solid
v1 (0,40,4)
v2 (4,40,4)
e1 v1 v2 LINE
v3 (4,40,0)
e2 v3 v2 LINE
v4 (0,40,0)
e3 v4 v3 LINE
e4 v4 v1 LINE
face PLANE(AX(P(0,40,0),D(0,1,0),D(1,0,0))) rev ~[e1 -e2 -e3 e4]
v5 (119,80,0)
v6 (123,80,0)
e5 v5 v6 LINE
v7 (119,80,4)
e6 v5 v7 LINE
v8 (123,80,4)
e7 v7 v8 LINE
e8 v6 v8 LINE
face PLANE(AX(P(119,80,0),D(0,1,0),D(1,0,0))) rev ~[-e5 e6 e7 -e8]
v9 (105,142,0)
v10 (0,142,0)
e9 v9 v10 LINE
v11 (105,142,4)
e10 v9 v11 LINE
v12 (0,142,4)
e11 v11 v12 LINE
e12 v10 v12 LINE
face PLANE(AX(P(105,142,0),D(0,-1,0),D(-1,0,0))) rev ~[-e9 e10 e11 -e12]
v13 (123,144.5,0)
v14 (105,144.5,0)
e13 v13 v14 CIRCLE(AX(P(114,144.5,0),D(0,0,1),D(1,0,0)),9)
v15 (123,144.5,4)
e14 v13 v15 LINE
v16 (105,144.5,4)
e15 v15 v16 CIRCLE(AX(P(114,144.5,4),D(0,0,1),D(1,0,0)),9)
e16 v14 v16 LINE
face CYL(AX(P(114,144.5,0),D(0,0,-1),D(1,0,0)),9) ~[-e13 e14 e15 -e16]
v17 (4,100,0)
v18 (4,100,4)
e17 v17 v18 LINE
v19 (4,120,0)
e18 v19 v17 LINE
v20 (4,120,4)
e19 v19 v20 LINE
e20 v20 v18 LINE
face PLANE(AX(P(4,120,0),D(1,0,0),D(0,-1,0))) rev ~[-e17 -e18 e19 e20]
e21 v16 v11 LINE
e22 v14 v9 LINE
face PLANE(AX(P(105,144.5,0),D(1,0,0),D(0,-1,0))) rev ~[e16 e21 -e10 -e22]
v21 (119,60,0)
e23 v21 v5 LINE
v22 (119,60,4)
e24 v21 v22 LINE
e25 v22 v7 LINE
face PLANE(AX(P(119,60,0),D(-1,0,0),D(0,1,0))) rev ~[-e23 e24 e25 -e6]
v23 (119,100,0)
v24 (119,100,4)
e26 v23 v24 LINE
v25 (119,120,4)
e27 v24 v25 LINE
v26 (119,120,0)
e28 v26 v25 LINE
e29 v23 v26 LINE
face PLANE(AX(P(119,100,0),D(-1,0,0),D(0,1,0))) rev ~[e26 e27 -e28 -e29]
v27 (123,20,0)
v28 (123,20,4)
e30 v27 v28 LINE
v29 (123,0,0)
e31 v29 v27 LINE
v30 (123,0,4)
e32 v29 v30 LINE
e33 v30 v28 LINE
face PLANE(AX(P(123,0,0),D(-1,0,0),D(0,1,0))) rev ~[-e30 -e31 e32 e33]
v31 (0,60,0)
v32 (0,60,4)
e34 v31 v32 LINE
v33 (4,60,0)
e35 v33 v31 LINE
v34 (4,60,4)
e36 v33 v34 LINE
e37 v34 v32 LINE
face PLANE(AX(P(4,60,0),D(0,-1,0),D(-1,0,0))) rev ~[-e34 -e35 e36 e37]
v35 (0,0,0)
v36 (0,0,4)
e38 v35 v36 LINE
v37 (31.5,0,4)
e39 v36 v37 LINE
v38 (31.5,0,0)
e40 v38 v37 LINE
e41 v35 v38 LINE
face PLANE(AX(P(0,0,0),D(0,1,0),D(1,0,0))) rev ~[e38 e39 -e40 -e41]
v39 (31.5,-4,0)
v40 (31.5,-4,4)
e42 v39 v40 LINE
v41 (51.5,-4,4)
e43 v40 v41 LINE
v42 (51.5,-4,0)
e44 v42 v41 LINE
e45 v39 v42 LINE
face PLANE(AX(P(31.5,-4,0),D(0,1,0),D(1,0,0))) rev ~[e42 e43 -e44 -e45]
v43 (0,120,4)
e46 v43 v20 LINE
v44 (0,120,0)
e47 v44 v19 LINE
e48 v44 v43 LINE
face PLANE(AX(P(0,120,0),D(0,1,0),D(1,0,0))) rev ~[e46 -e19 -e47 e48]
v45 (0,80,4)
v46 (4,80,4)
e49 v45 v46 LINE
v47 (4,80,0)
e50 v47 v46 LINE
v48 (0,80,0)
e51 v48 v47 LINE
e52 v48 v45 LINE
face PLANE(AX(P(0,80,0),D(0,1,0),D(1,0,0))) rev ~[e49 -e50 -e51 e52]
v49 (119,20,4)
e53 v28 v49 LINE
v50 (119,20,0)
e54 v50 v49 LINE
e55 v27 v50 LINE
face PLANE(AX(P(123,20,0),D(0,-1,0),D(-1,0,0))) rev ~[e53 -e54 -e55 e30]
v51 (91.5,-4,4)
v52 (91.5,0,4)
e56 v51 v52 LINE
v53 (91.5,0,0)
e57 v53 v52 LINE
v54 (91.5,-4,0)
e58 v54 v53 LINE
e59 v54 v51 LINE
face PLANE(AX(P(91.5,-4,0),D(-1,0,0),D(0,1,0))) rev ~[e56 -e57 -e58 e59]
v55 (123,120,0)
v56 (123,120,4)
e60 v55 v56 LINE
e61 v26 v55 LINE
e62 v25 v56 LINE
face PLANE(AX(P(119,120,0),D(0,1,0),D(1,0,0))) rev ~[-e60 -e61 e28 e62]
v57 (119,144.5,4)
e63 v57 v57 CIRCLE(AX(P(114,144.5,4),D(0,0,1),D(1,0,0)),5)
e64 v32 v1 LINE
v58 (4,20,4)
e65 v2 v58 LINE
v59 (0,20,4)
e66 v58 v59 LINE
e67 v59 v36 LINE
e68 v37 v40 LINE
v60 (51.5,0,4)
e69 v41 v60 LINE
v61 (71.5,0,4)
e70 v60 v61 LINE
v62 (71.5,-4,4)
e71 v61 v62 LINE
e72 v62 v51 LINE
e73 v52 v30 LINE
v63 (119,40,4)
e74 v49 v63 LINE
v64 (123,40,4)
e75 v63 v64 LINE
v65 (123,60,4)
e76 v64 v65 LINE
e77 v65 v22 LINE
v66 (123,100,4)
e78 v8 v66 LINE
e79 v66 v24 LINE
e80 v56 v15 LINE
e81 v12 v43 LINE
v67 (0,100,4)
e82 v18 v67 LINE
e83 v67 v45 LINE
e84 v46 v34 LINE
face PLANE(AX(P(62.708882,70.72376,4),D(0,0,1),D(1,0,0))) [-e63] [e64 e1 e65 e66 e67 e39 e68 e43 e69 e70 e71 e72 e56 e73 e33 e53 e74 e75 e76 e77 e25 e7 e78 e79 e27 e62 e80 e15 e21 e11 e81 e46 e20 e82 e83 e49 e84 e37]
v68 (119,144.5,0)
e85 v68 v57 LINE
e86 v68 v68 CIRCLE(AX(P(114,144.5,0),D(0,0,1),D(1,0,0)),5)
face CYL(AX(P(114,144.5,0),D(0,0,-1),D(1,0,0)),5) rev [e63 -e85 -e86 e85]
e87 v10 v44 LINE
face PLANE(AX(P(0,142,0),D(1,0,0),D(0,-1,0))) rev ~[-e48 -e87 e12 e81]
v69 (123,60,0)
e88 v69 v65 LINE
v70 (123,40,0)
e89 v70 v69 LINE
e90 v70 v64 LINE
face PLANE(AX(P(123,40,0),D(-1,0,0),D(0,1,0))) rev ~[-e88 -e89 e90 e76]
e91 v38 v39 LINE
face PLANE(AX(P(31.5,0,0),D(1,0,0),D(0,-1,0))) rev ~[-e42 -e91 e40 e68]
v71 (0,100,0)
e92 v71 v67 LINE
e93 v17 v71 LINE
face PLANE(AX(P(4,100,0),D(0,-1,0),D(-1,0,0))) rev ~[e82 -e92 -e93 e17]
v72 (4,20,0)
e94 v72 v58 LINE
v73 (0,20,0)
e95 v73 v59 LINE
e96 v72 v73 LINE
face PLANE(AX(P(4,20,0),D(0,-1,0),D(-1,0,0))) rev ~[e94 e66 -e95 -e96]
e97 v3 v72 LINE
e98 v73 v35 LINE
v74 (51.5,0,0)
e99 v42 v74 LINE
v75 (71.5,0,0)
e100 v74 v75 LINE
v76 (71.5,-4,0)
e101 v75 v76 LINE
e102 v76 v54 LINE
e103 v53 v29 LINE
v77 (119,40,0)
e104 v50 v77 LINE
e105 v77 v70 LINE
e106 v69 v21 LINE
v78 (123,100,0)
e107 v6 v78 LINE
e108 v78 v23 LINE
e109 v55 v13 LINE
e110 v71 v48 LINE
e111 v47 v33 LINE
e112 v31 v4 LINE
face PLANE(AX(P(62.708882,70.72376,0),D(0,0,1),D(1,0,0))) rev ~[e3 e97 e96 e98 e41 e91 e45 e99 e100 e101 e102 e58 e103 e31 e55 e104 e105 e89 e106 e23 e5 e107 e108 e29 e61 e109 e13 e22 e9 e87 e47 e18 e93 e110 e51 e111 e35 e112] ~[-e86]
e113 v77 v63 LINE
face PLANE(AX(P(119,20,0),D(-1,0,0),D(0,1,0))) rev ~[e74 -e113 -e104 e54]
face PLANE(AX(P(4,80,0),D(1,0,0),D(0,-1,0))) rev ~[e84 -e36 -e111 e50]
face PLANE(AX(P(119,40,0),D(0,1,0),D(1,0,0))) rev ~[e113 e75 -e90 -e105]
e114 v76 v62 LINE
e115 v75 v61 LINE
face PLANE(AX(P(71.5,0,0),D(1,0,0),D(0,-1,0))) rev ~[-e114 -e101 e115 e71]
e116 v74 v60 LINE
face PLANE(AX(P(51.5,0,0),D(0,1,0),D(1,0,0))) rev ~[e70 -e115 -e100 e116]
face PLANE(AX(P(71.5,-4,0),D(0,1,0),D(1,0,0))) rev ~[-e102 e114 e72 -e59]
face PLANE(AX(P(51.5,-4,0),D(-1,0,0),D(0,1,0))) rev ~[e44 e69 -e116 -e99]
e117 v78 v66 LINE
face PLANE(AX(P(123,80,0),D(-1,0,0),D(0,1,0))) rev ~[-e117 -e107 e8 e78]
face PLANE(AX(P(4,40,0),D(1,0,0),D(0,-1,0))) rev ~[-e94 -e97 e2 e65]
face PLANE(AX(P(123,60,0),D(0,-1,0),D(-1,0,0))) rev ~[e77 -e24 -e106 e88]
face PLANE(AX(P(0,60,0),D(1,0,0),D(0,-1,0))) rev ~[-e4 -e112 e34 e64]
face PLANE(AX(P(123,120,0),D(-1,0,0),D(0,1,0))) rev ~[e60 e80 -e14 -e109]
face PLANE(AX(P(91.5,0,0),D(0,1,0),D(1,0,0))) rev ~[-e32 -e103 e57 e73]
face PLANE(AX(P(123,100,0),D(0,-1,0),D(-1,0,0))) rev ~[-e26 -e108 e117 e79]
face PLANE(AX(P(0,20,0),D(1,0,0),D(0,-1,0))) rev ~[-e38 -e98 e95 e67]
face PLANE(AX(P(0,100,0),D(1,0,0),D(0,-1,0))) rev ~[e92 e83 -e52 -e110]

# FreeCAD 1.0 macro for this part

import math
import FreeCAD as App
import Part
import Sketcher

doc = App.newDocument("Part")
body = doc.addObject("PartDesign::Body", "Body")

sketch1 = body.newObject("Sketcher::SketchObject", "Sketch")
sketch1.AttachmentSupport = (doc.getObject("XY_Plane"), [""])
sketch1.MapMode = "FlatFace"
sketch1.addGeometry(Part.LineSegment(App.Vector(31.5, 0, 0), App.Vector(31.5, -4, 0)), False)
sketch1.addGeometry(Part.LineSegment(App.Vector(31.5, -4, 0), App.Vector(51.5, -4, 0)), False)
sketch1.addGeometry(Part.LineSegment(App.Vector(51.5, -4, 0), App.Vector(51.5, 0, 0)), False)
sketch1.addGeometry(Part.LineSegment(App.Vector(51.5, 0, 0), App.Vector(71.5, 0, 0)), False)
sketch1.addGeometry(Part.LineSegment(App.Vector(71.5, 0, 0), App.Vector(71.5, -4, 0)), False)
sketch1.addGeometry(Part.LineSegment(App.Vector(71.5, -4, 0), App.Vector(91.5, -4, 0)), False)
sketch1.addGeometry(Part.LineSegment(App.Vector(91.5, -4, 0), App.Vector(91.5, 0, 0)), False)
sketch1.addGeometry(Part.LineSegment(App.Vector(91.5, 0, 0), App.Vector(123, 0, 0)), False)
sketch1.addGeometry(Part.LineSegment(App.Vector(123, 0, 0), App.Vector(123, 20, 0)), False)
sketch1.addGeometry(Part.LineSegment(App.Vector(123, 20, 0), App.Vector(119, 20, 0)), False)
sketch1.addGeometry(Part.LineSegment(App.Vector(119, 20, 0), App.Vector(119, 40, 0)), False)
sketch1.addGeometry(Part.LineSegment(App.Vector(119, 40, 0), App.Vector(123, 40, 0)), False)
sketch1.addGeometry(Part.LineSegment(App.Vector(123, 40, 0), App.Vector(123, 60, 0)), False)
sketch1.addGeometry(Part.LineSegment(App.Vector(123, 60, 0), App.Vector(119, 60, 0)), False)
sketch1.addGeometry(Part.LineSegment(App.Vector(119, 60, 0), App.Vector(119, 80, 0)), False)
sketch1.addGeometry(Part.LineSegment(App.Vector(119, 80, 0), App.Vector(123, 80, 0)), False)
sketch1.addGeometry(Part.LineSegment(App.Vector(123, 80, 0), App.Vector(123, 100, 0)), False)
sketch1.addGeometry(Part.LineSegment(App.Vector(123, 100, 0), App.Vector(119, 100, 0)), False)
sketch1.addGeometry(Part.LineSegment(App.Vector(119, 100, 0), App.Vector(119, 120, 0)), False)
sketch1.addGeometry(Part.LineSegment(App.Vector(119, 120, 0), App.Vector(123, 120, 0)), False)
sketch1.addGeometry(Part.LineSegment(App.Vector(123, 120, 0), App.Vector(123, 144.5, 0)), False)
sketch1.addGeometry(Part.ArcOfCircle(Part.Circle(App.Vector(114, 144.5, 0), App.Vector(0, 0, 1), 9), math.radians(0), math.radians(180)), False)
sketch1.addGeometry(Part.LineSegment(App.Vector(105, 144.5, 0), App.Vector(105, 142, 0)), False)
sketch1.addGeometry(Part.LineSegment(App.Vector(105, 142, 0), App.Vector(0, 142, 0)), False)
sketch1.addGeometry(Part.LineSegment(App.Vector(0, 142, 0), App.Vector(0, 120, 0)), False)
sketch1.addGeometry(Part.LineSegment(App.Vector(0, 120, 0), App.Vector(4, 120, 0)), False)
sketch1.addGeometry(Part.LineSegment(App.Vector(4, 120, 0), App.Vector(4, 100, 0)), False)
sketch1.addGeometry(Part.LineSegment(App.Vector(4, 100, 0), App.Vector(0, 100, 0)), False)
sketch1.addGeometry(Part.LineSegment(App.Vector(0, 100, 0), App.Vector(0, 80, 0)), False)
sketch1.addGeometry(Part.LineSegment(App.Vector(0, 80, 0), App.Vector(4, 80, 0)), False)
sketch1.addGeometry(Part.LineSegment(App.Vector(4, 80, 0), App.Vector(4, 60, 0)), False)
sketch1.addGeometry(Part.LineSegment(App.Vector(4, 60, 0), App.Vector(0, 60, 0)), False)
sketch1.addGeometry(Part.LineSegment(App.Vector(0, 60, 0), App.Vector(0, 40, 0)), False)
sketch1.addGeometry(Part.LineSegment(App.Vector(0, 40, 0), App.Vector(4, 40, 0)), False)
sketch1.addGeometry(Part.LineSegment(App.Vector(4, 40, 0), App.Vector(4, 20, 0)), False)
sketch1.addGeometry(Part.LineSegment(App.Vector(4, 20, 0), App.Vector(0, 20, 0)), False)
sketch1.addGeometry(Part.LineSegment(App.Vector(0, 20, 0), App.Vector(0, 0, 0)), False)
sketch1.addGeometry(Part.LineSegment(App.Vector(0, 0, 0), App.Vector(31.5, 0, 0)), False)
sketch1.addGeometry(Part.Circle(App.Vector(114, 144.5, 0), App.Vector(0, 0, 1), 5), False)
sketch1.addConstraint(Sketcher.Constraint("Coincident", 0, 2, 1, 1))
sketch1.addConstraint(Sketcher.Constraint("Coincident", 1, 2, 2, 1))
sketch1.addConstraint(Sketcher.Constraint("Coincident", 2, 2, 3, 1))
sketch1.addConstraint(Sketcher.Constraint("Coincident", 3, 2, 4, 1))
sketch1.addConstraint(Sketcher.Constraint("Coincident", 4, 2, 5, 1))
sketch1.addConstraint(Sketcher.Constraint("Coincident", 5, 2, 6, 1))
sketch1.addConstraint(Sketcher.Constraint("Coincident", 6, 2, 7, 1))
sketch1.addConstraint(Sketcher.Constraint("Coincident", 7, 2, 8, 1))
sketch1.addConstraint(Sketcher.Constraint("Coincident", 8, 2, 9, 1))
sketch1.addConstraint(Sketcher.Constraint("Coincident", 9, 2, 10, 1))
sketch1.addConstraint(Sketcher.Constraint("Coincident", 10, 2, 11, 1))
sketch1.addConstraint(Sketcher.Constraint("Coincident", 11, 2, 12, 1))
sketch1.addConstraint(Sketcher.Constraint("Coincident", 12, 2, 13, 1))
sketch1.addConstraint(Sketcher.Constraint("Coincident", 13, 2, 14, 1))
sketch1.addConstraint(Sketcher.Constraint("Coincident", 14, 2, 15, 1))
sketch1.addConstraint(Sketcher.Constraint("Coincident", 15, 2, 16, 1))
sketch1.addConstraint(Sketcher.Constraint("Coincident", 16, 2, 17, 1))
sketch1.addConstraint(Sketcher.Constraint("Coincident", 17, 2, 18, 1))
sketch1.addConstraint(Sketcher.Constraint("Coincident", 18, 2, 19, 1))
sketch1.addConstraint(Sketcher.Constraint("Coincident", 19, 2, 20, 1))
sketch1.addConstraint(Sketcher.Constraint("Tangent", 20, 2, 21, 1))
sketch1.addConstraint(Sketcher.Constraint("Tangent", 21, 2, 22, 1))
sketch1.addConstraint(Sketcher.Constraint("Coincident", 22, 2, 23, 1))
sketch1.addConstraint(Sketcher.Constraint("Coincident", 23, 2, 24, 1))
sketch1.addConstraint(Sketcher.Constraint("Coincident", 24, 2, 25, 1))
sketch1.addConstraint(Sketcher.Constraint("Coincident", 25, 2, 26, 1))
sketch1.addConstraint(Sketcher.Constraint("Coincident", 26, 2, 27, 1))
sketch1.addConstraint(Sketcher.Constraint("Coincident", 27, 2, 28, 1))
sketch1.addConstraint(Sketcher.Constraint("Coincident", 28, 2, 29, 1))
sketch1.addConstraint(Sketcher.Constraint("Coincident", 29, 2, 30, 1))
sketch1.addConstraint(Sketcher.Constraint("Coincident", 30, 2, 31, 1))
sketch1.addConstraint(Sketcher.Constraint("Coincident", 31, 2, 32, 1))
sketch1.addConstraint(Sketcher.Constraint("Coincident", 32, 2, 33, 1))
sketch1.addConstraint(Sketcher.Constraint("Coincident", 33, 2, 34, 1))
sketch1.addConstraint(Sketcher.Constraint("Coincident", 34, 2, 35, 1))
sketch1.addConstraint(Sketcher.Constraint("Coincident", 35, 2, 36, 1))
sketch1.addConstraint(Sketcher.Constraint("Coincident", 36, 2, 37, 1))
sketch1.addConstraint(Sketcher.Constraint("Coincident", 37, 2, 0, 1))
sketch1.addConstraint(Sketcher.Constraint("Vertical", 0))
sketch1.addConstraint(Sketcher.Constraint("Horizontal", 1))
sketch1.addConstraint(Sketcher.Constraint("Vertical", 2))
sketch1.addConstraint(Sketcher.Constraint("Horizontal", 3))
sketch1.addConstraint(Sketcher.Constraint("Vertical", 4))
sketch1.addConstraint(Sketcher.Constraint("Horizontal", 5))
sketch1.addConstraint(Sketcher.Constraint("Vertical", 6))
sketch1.addConstraint(Sketcher.Constraint("Horizontal", 7))
sketch1.addConstraint(Sketcher.Constraint("Vertical", 8))
sketch1.addConstraint(Sketcher.Constraint("Horizontal", 9))
sketch1.addConstraint(Sketcher.Constraint("Vertical", 10))
sketch1.addConstraint(Sketcher.Constraint("Horizontal", 11))
sketch1.addConstraint(Sketcher.Constraint("Vertical", 12))
sketch1.addConstraint(Sketcher.Constraint("Horizontal", 13))
sketch1.addConstraint(Sketcher.Constraint("Vertical", 14))
sketch1.addConstraint(Sketcher.Constraint("Horizontal", 15))
sketch1.addConstraint(Sketcher.Constraint("Vertical", 16))
sketch1.addConstraint(Sketcher.Constraint("Horizontal", 17))
sketch1.addConstraint(Sketcher.Constraint("Vertical", 18))
sketch1.addConstraint(Sketcher.Constraint("Horizontal", 19))
sketch1.addConstraint(Sketcher.Constraint("Vertical", 20))
sketch1.addConstraint(Sketcher.Constraint("Vertical", 22))
sketch1.addConstraint(Sketcher.Constraint("Horizontal", 23))
sketch1.addConstraint(Sketcher.Constraint("Vertical", 24))
sketch1.addConstraint(Sketcher.Constraint("Horizontal", 25))
sketch1.addConstraint(Sketcher.Constraint("Vertical", 26))
sketch1.addConstraint(Sketcher.Constraint("Horizontal", 27))
sketch1.addConstraint(Sketcher.Constraint("Vertical", 28))
sketch1.addConstraint(Sketcher.Constraint("Horizontal", 29))
sketch1.addConstraint(Sketcher.Constraint("Vertical", 30))
sketch1.addConstraint(Sketcher.Constraint("Horizontal", 31))
sketch1.addConstraint(Sketcher.Constraint("Vertical", 32))
sketch1.addConstraint(Sketcher.Constraint("Horizontal", 33))
sketch1.addConstraint(Sketcher.Constraint("Vertical", 34))
sketch1.addConstraint(Sketcher.Constraint("Horizontal", 35))
sketch1.addConstraint(Sketcher.Constraint("Vertical", 36))
sketch1.addConstraint(Sketcher.Constraint("Horizontal", 37))
sketch1.addConstraint(Sketcher.Constraint("Coincident", 36, 2, -1, 1))
sketch1.addConstraint(Sketcher.Constraint("Coincident", 38, 3, 21, 3))
sketch1.addConstraint(Sketcher.Constraint("PointOnObject", 2, 2, -1))
sketch1.addConstraint(Sketcher.Constraint("PointOnObject", 6, 2, -1))
sketch1.addConstraint(Sketcher.Constraint("PointOnObject", 23, 2, -2))
sketch1.addConstraint(Sketcher.Constraint("PointOnObject", 27, 2, -2))
sketch1.addConstraint(Sketcher.Constraint("PointOnObject", 31, 2, -2))
sketch1.addConstraint(Sketcher.Constraint("Horizontal", 1, 2, 4, 2))
sketch1.addConstraint(Sketcher.Constraint("Horizontal", 19, 2, 24, 2))
sketch1.addConstraint(Sketcher.Constraint("Horizontal", 17, 2, 26, 2))
sketch1.addConstraint(Sketcher.Constraint("Horizontal", 15, 2, 28, 2))
sketch1.addConstraint(Sketcher.Constraint("Horizontal", 13, 2, 30, 2))
sketch1.addConstraint(Sketcher.Constraint("Horizontal", 11, 2, 32, 2))
sketch1.addConstraint(Sketcher.Constraint("Horizontal", 9, 2, 34, 2))
sketch1.addConstraint(Sketcher.Constraint("Vertical", 8, 2, 11, 2))
sketch1.addConstraint(Sketcher.Constraint("Vertical", 10, 2, 13, 2))
sketch1.addConstraint(Sketcher.Constraint("Vertical", 12, 2, 15, 2))
sketch1.addConstraint(Sketcher.Constraint("Vertical", 14, 2, 17, 2))
sketch1.addConstraint(Sketcher.Constraint("Vertical", 16, 2, 19, 2))
sketch1.addConstraint(Sketcher.Constraint("Vertical", 26, 2, 29, 2))
sketch1.addConstraint(Sketcher.Constraint("Vertical", 30, 2, 33, 2))
sketch1.addConstraint(Sketcher.Constraint("Equal", 1, 3))
sketch1.addConstraint(Sketcher.Constraint("Equal", 3, 5))
sketch1.addConstraint(Sketcher.Constraint("Equal", 19, 25))
sketch1.addConstraint(Sketcher.Constraint("Equal", 7, 37))
sketch1.addConstraint(Sketcher.Constraint("Equal", 35, 0))
sketch1.addConstraint(Sketcher.Constraint("Equal", 5, 8))
sketch1.addConstraint(Sketcher.Constraint("Equal", 8, 10))
sketch1.addConstraint(Sketcher.Constraint("Equal", 10, 12))
sketch1.addConstraint(Sketcher.Constraint("Equal", 12, 14))
sketch1.addConstraint(Sketcher.Constraint("Equal", 14, 16))
sketch1.addConstraint(Sketcher.Constraint("Equal", 16, 18))
sketch1.addConstraint(Sketcher.Constraint("Diameter", 38, 10.0))
sketch1.addConstraint(Sketcher.Constraint("Radius", 21, 9.0))
sketch1.addConstraint(Sketcher.Constraint("DistanceX", 1, 1, 1, 2, 20.0))
sketch1.addConstraint(Sketcher.Constraint("DistanceX", 9, 2, 9, 1, 4.0))
sketch1.addConstraint(Sketcher.Constraint("DistanceX", 23, 2, 23, 1, 105.0))
sketch1.addConstraint(Sketcher.Constraint("DistanceY", 24, 2, 24, 1, 22.0))
sketch1.addConstraint(Sketcher.Constraint("DistanceY", 20, 1, 20, 2, 24.5))
pad1 = body.newObject("PartDesign::Pad", "Pad")
pad1.Profile = sketch1
pad1.Length = 4

doc.recompute()
